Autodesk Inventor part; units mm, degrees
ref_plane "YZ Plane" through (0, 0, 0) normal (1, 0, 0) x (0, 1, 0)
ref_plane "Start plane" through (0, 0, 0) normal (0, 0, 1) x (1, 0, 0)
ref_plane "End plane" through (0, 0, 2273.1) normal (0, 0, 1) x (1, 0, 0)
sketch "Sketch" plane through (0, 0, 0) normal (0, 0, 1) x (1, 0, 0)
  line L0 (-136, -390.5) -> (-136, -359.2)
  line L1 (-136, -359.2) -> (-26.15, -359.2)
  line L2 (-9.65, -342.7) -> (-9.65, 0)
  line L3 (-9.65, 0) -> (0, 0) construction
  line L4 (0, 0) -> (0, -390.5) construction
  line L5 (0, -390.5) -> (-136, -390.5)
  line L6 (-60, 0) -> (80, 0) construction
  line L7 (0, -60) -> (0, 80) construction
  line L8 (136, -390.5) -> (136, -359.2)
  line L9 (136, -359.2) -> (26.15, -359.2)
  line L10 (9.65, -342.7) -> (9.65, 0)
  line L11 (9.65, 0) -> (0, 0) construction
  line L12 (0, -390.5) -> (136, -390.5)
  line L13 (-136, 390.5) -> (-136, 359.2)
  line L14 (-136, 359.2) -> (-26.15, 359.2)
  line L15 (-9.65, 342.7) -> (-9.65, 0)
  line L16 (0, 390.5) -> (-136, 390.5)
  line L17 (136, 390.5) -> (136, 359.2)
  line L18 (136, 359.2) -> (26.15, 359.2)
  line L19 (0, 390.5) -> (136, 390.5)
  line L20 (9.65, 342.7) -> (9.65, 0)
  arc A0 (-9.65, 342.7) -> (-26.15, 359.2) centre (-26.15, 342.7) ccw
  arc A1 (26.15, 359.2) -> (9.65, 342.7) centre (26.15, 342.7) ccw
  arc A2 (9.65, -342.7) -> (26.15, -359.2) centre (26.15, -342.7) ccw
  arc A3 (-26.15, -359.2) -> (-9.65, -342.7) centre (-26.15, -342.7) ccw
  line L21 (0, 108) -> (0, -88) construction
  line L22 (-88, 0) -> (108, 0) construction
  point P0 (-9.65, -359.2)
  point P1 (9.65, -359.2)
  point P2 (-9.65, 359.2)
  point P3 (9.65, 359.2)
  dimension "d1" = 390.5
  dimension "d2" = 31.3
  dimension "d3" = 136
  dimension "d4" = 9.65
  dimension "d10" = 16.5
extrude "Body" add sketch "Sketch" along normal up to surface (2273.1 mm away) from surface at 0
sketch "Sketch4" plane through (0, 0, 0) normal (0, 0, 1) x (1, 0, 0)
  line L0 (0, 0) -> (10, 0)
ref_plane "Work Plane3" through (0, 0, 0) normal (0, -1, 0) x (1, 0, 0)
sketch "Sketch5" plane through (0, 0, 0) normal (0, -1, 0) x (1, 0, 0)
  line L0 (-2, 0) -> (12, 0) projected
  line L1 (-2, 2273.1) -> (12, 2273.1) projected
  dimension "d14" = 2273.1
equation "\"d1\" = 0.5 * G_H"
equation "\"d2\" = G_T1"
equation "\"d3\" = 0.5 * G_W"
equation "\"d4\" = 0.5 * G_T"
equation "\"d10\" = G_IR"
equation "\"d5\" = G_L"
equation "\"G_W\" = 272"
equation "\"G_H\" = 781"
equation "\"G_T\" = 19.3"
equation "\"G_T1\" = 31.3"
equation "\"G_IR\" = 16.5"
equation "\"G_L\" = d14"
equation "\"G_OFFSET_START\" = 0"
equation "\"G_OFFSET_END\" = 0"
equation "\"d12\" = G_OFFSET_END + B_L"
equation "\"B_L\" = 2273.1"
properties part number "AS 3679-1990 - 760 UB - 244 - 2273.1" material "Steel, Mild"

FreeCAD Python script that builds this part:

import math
import FreeCAD as App
import Part
import Sketcher

V = App.Vector

doc = App.newDocument("Part")
body = doc.addObject("PartDesign::Body", "Body")

sketch1 = body.newObject("Sketcher::SketchObject", "Sketch")
sketch1.AttachmentSupport = (doc.getObject("XY_Plane"), [""])
sketch1.MapMode = "FlatFace"
sketch1.addGeometry([
    Part.LineSegment(V(-136, -359, 0), V(-136, -390, 0)),
    Part.LineSegment(V(-136, -390, 0), V(136, -390, 0)),
    Part.LineSegment(V(136, -390, 0), V(136, -359, 0)),
    Part.LineSegment(V(136, -359, 0), V(26, -359, 0)),
    Part.ArcOfCircle(Part.Circle(V(26, -343, 0), V(0, 0, 1), 16), math.radians(180), math.radians(270)),
    Part.LineSegment(V(10, -343, 0), V(10, 343, 0)),
    Part.ArcOfCircle(Part.Circle(V(26, 343, 0), V(0, 0, 1), 16), math.radians(90), math.radians(180)),
    Part.LineSegment(V(26, 359, 0), V(136, 359, 0)),
    Part.LineSegment(V(136, 359, 0), V(136, 390, 0)),
    Part.LineSegment(V(136, 390, 0), V(-136, 390, 0)),
    Part.LineSegment(V(-136, 390, 0), V(-136, 359, 0)),
    Part.LineSegment(V(-136, 359, 0), V(-26, 359, 0)),
    Part.ArcOfCircle(Part.Circle(V(-26, 343, 0), V(0, 0, 1), 16), math.radians(0), math.radians(90)),
    Part.LineSegment(V(-10, 343, 0), V(-10, -343, 0)),
    Part.ArcOfCircle(Part.Circle(V(-26, -343, 0), V(0, 0, 1), 16), math.radians(-90), math.radians(0)),
    Part.LineSegment(V(-26, -359, 0), V(-136, -359, 0)),
], False)
sketch1.addConstraint([
    Sketcher.Constraint("Coincident", 0, 2, 1, 1),
    Sketcher.Constraint("Coincident", 1, 2, 2, 1),
    Sketcher.Constraint("Coincident", 2, 2, 3, 1),
    Sketcher.Constraint("Tangent", 3, 2, 4, 2),
    Sketcher.Constraint("Tangent", 4, 1, 5, 1),
    Sketcher.Constraint("Tangent", 5, 2, 6, 2),
    Sketcher.Constraint("Tangent", 6, 1, 7, 1),
    Sketcher.Constraint("Coincident", 7, 2, 8, 1),
    Sketcher.Constraint("Coincident", 8, 2, 9, 1),
    Sketcher.Constraint("Coincident", 9, 2, 10, 1),
    Sketcher.Constraint("Coincident", 10, 2, 11, 1),
    Sketcher.Constraint("Tangent", 11, 2, 12, 2),
    Sketcher.Constraint("Tangent", 12, 1, 13, 1),
    Sketcher.Constraint("Tangent", 13, 2, 14, 2),
    Sketcher.Constraint("Tangent", 14, 1, 15, 1),
    Sketcher.Constraint("Coincident", 15, 2, 0, 1),
    Sketcher.Constraint("Vertical", 0),
    Sketcher.Constraint("Horizontal", 1),
    Sketcher.Constraint("Vertical", 2),
    Sketcher.Constraint("Horizontal", 3),
    Sketcher.Constraint("Vertical", 5),
    Sketcher.Constraint("Horizontal", 7),
    Sketcher.Constraint("Vertical", 8),
    Sketcher.Constraint("Horizontal", 9),
    Sketcher.Constraint("Vertical", 10),
    Sketcher.Constraint("Horizontal", 11),
    Sketcher.Constraint("Vertical", 13),
    Sketcher.Constraint("Horizontal", 15),
    Sketcher.Constraint("Equal", 4, 6),
    Sketcher.Constraint("Equal", 6, 12),
    Sketcher.Constraint("Equal", 12, 14),
    Sketcher.Constraint("Symmetric", 4, 3, 12, 3, -1, 1),
    Sketcher.Constraint("Symmetric", 0, 2, 8, 2, -1, 1),
    Sketcher.Constraint("Symmetric", 7, 2, 10, 2, -2),
    Sketcher.Constraint("Symmetric", 2, 2, 15, 2, -2),
    Sketcher.Constraint("Radius", 4, 16.5),
    Sketcher.Constraint("DistanceY", 0, 2, 0, 1, 31.3),
    Sketcher.Constraint("DistanceX", 0, 2, -1, 1, 136.0),
    Sketcher.Constraint("DistanceY", 0, 2, -1, 1, 390.5),
    Sketcher.Constraint("DistanceX", -1, 1, 4, 1, 9.65),
])
pad1 = body.newObject("PartDesign::Pad", "Pad")
pad1.Profile = sketch1
pad1.Length = 2273.1

doc.recompute()
